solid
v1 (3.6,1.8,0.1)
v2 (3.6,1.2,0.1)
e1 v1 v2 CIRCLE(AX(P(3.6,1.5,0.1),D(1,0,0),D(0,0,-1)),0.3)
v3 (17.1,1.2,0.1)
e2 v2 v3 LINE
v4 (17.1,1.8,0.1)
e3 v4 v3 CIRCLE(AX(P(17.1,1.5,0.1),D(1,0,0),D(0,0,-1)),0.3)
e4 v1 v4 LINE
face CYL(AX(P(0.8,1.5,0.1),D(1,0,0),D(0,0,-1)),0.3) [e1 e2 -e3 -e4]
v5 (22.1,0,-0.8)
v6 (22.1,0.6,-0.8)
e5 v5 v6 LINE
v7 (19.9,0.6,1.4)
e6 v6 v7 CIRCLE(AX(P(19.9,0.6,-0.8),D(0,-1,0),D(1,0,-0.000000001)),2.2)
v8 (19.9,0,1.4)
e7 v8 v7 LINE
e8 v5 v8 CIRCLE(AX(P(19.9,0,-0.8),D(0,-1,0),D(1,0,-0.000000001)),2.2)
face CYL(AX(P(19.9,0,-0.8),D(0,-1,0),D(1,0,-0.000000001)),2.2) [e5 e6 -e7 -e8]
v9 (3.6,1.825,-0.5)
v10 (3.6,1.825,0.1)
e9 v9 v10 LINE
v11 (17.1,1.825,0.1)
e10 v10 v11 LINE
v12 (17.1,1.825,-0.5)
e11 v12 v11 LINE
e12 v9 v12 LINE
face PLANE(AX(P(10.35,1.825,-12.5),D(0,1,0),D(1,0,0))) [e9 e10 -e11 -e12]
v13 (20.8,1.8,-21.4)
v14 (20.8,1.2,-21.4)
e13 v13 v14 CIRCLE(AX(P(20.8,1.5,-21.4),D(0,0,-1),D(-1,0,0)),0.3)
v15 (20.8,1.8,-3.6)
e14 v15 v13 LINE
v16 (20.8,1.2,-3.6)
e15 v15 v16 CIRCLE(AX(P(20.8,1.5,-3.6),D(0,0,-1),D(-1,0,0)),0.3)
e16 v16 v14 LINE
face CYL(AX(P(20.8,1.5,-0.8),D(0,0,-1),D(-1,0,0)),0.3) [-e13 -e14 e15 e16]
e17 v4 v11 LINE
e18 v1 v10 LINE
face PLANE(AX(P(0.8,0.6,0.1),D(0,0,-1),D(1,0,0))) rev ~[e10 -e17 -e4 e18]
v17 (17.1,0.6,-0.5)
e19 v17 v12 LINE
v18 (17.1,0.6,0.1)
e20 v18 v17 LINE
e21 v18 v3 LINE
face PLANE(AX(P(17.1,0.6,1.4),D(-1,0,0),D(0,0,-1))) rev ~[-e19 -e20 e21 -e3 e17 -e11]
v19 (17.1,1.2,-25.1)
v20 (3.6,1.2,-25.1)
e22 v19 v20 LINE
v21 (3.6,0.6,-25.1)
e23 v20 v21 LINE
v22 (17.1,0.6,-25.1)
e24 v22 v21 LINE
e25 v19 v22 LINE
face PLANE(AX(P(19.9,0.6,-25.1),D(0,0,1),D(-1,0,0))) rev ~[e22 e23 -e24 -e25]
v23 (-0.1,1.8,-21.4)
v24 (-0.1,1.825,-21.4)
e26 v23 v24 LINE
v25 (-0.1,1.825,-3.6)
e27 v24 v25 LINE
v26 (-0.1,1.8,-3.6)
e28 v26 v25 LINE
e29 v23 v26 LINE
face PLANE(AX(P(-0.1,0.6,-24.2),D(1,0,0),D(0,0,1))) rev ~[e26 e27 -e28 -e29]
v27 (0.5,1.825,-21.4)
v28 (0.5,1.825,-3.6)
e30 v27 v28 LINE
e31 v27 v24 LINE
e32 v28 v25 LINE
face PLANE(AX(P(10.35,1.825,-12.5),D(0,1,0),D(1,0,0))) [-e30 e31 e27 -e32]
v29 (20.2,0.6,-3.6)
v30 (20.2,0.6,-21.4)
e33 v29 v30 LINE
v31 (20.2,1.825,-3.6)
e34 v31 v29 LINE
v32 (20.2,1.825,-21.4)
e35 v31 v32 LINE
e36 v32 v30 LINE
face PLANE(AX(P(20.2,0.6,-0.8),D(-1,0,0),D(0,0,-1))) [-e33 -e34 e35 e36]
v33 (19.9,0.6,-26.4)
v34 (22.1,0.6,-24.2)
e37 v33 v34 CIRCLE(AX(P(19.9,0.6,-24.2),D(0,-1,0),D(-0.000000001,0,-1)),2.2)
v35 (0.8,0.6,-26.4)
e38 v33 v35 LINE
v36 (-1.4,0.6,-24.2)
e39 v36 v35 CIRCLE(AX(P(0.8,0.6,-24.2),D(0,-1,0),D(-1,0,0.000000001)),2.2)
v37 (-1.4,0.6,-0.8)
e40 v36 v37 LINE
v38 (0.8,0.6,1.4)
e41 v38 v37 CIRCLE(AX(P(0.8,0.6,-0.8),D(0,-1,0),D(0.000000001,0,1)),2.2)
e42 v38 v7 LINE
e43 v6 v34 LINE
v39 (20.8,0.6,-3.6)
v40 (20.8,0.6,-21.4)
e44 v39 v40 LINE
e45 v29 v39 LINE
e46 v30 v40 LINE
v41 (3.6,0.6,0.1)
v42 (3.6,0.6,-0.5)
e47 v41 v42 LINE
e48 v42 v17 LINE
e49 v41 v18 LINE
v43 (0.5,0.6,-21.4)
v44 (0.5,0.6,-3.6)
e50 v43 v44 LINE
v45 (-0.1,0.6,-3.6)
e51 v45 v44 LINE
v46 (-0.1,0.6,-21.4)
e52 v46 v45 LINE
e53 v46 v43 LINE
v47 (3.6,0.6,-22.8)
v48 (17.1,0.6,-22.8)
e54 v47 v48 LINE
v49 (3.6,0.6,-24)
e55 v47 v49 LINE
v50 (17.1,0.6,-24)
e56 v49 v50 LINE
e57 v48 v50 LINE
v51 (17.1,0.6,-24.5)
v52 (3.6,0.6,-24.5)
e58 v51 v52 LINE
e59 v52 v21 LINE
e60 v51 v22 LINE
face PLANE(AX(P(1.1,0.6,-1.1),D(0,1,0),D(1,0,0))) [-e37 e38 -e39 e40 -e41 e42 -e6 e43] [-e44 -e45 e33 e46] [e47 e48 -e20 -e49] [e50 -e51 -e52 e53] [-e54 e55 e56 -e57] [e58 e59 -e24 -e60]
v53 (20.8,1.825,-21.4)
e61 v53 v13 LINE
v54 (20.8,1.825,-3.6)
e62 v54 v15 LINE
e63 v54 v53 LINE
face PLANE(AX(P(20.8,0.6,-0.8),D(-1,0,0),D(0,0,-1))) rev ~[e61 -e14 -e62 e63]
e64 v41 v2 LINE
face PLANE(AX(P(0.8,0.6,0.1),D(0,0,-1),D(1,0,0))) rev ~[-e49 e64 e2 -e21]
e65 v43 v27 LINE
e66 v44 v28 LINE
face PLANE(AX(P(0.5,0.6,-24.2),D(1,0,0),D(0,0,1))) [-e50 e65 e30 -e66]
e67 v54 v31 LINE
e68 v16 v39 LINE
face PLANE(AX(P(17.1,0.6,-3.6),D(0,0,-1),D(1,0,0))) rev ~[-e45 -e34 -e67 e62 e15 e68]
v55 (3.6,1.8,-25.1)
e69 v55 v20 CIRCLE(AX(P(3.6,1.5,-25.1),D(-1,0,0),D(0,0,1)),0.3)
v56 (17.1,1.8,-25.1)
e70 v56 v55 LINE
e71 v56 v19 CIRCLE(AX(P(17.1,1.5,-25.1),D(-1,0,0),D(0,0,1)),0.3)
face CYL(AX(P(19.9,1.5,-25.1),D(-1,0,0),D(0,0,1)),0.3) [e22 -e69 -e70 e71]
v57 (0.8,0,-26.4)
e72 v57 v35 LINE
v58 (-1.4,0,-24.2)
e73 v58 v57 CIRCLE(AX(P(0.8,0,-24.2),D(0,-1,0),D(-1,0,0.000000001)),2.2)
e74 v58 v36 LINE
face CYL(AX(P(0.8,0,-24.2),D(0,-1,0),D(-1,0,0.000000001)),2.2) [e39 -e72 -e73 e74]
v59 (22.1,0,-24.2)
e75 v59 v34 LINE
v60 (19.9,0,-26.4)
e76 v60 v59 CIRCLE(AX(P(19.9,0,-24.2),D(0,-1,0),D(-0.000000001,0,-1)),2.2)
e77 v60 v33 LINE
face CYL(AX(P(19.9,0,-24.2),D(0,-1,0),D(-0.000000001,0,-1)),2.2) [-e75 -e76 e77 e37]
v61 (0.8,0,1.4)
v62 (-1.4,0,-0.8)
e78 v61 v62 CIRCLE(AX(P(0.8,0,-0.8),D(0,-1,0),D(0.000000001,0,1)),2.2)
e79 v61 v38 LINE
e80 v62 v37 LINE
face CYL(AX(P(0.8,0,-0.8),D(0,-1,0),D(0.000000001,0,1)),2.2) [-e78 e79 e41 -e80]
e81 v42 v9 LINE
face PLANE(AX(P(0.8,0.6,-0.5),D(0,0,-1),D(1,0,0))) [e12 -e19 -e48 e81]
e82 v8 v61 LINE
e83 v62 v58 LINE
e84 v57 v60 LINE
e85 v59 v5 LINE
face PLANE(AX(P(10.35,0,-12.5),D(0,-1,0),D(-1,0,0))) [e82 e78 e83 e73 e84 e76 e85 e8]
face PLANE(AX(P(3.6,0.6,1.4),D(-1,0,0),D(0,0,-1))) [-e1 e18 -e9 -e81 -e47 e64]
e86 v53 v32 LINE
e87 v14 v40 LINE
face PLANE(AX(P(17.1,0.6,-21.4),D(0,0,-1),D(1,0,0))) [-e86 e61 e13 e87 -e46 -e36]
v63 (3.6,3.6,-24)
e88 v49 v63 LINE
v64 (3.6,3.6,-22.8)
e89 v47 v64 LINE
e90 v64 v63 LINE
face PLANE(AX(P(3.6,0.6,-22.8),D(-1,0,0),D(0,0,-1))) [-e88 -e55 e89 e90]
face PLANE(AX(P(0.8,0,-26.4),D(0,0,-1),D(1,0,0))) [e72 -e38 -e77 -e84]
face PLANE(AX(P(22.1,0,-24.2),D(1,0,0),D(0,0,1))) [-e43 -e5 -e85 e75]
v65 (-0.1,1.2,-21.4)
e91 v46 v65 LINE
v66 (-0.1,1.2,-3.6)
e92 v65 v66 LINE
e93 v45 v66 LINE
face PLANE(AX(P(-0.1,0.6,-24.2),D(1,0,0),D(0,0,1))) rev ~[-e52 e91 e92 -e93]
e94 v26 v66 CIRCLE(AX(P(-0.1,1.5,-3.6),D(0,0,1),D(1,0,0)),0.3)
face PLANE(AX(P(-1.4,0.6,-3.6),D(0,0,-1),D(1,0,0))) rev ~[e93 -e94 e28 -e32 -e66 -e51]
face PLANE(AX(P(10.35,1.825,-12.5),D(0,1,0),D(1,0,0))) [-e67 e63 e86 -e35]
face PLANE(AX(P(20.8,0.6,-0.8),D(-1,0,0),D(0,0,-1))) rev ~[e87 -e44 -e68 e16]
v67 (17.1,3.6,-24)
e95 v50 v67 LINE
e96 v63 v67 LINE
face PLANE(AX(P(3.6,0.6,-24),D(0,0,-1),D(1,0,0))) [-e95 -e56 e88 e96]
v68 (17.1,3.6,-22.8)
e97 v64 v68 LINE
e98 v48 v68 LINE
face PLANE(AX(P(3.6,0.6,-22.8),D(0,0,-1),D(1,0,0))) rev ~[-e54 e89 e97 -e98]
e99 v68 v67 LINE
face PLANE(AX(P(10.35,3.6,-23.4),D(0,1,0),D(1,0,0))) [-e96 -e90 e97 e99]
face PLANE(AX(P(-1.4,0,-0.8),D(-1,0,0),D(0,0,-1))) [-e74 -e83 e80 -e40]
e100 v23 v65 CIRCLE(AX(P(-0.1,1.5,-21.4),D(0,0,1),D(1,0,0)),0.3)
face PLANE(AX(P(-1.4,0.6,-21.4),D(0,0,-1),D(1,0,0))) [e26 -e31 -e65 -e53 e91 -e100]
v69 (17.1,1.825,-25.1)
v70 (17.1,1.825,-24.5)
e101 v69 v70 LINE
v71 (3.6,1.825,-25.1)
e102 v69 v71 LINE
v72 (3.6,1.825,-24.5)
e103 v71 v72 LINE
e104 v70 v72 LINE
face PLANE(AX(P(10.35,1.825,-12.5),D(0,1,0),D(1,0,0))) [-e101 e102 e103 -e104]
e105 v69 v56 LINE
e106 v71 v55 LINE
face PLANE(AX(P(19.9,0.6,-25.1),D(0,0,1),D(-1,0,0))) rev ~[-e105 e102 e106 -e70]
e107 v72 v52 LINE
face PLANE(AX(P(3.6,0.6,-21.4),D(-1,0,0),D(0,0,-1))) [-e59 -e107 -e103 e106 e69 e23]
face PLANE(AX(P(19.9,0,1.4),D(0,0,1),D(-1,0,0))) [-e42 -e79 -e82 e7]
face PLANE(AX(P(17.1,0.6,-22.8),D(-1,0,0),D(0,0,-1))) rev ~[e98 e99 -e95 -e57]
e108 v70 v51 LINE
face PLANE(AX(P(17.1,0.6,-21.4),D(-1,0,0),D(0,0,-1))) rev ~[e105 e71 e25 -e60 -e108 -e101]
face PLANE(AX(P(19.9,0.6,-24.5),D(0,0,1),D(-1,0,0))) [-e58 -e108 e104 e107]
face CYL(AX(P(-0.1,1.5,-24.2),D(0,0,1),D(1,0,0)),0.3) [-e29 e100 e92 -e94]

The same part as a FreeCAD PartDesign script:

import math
import FreeCAD as App
import Part
import Sketcher
from FreeCAD import Vector
Q = App.Units.Quantity

doc = App.newDocument("Part")
body = doc.addObject("PartDesign::Body", "Body")

sketch1 = body.newObject("Sketcher::SketchObject", "Sketch")
sketch1.AttachmentSupport = (doc.getObject("XZ_Plane"), [""])
sketch1.MapMode = "FlatFace"
sketch1.addGeometry([
    Part.LineSegment(Vector(19.9, -26.4, 0), Vector(0.8, -26.4, 0)),
    Part.ArcOfCircle(Part.Circle(Vector(0.8, -24.2, 0), Vector(0, 0, 1), 2.2), math.radians(180), math.radians(270)),
    Part.LineSegment(Vector(-1.4, -24.2, 0), Vector(-1.4, -0.8, 0)),
    Part.ArcOfCircle(Part.Circle(Vector(0.8, -0.8, 0), Vector(0, 0, 1), 2.2), math.radians(90), math.radians(180)),
    Part.LineSegment(Vector(0.8, 1.4, 0), Vector(19.9, 1.4, 0)),
    Part.ArcOfCircle(Part.Circle(Vector(19.9, -0.8, 0), Vector(0, 0, 1), 2.2), math.radians(0), math.radians(90)),
    Part.LineSegment(Vector(22.1, -0.8, 0), Vector(22.1, -24.2, 0)),
    Part.ArcOfCircle(Part.Circle(Vector(19.9, -24.2, 0), Vector(0, 0, 1), 2.2), math.radians(-90), math.radians(0)),
], False)
sketch1.addConstraint([
    Sketcher.Constraint("Tangent", 0, 2, 1, 2),
    Sketcher.Constraint("Tangent", 1, 1, 2, 1),
    Sketcher.Constraint("Tangent", 2, 2, 3, 2),
    Sketcher.Constraint("Tangent", 3, 1, 4, 1),
    Sketcher.Constraint("Tangent", 4, 2, 5, 2),
    Sketcher.Constraint("Tangent", 5, 1, 6, 1),
    Sketcher.Constraint("Tangent", 6, 2, 7, 2),
    Sketcher.Constraint("Tangent", 7, 1, 0, 1),
    Sketcher.Constraint("Horizontal", 0),
    Sketcher.Constraint("Vertical", 2),
    Sketcher.Constraint("Horizontal", 4),
    Sketcher.Constraint("Vertical", 6),
    Sketcher.Constraint("Equal", 1, 3),
    Sketcher.Constraint("Equal", 3, 5),
    Sketcher.Constraint("Equal", 5, 7),
    Sketcher.Constraint("Radius", 1, Q("2.2 mm")),
    Sketcher.Constraint("DistanceX", 0, 2, 0, 1, Q("19.1 mm")),
    Sketcher.Constraint("DistanceY", 2, 1, 2, 2, Q("23.4 mm")),
    Sketcher.Constraint("DistanceX", -1, 1, 1, 3, Q("0.8 mm")),
    Sketcher.Constraint("DistanceY", 1, 3, -1, 1, Q("24.2 mm")),
])
pad1 = body.newObject("PartDesign::Pad", "Pad")
pad1.Profile = sketch1
pad1.Length = 0.6
pad1.Reversed = True

sketch2 = body.newObject("Sketcher::SketchObject", "Sketch001")
sketch2.AttachmentSupport = (doc.getObject("XZ_Plane"), [""])
sketch2.MapMode = "FlatFace"
sketch2.AttachmentOffset = App.Placement(Vector(0, 0, -0.6), App.Rotation())
sketch2.addGeometry([
    Part.LineSegment(Vector(-0.1, -24.2, 0), Vector(-0.1, -0.8, 0)),
    Part.ArcOfCircle(Part.Circle(Vector(0.8, -0.8, 0), Vector(0, 0, 1), 0.9), math.radians(90), math.radians(180)),
    Part.LineSegment(Vector(0.8, 0.1, 0), Vector(19.9, 0.1, 0)),
    Part.ArcOfCircle(Part.Circle(Vector(19.9, -0.8, 0), Vector(0, 0, 1), 0.9), math.radians(0), math.radians(90)),
    Part.LineSegment(Vector(20.8, -0.8, 0), Vector(20.8, -24.2, 0)),
    Part.ArcOfCircle(Part.Circle(Vector(19.9, -24.2, 0), Vector(0, 0, 1), 0.9), math.radians(-90), math.radians(0)),
    Part.LineSegment(Vector(19.9, -25.1, 0), Vector(0.8, -25.1, 0)),
    Part.ArcOfCircle(Part.Circle(Vector(0.8, -24.2, 0), Vector(0, 0, 1), 0.9), math.radians(180), math.radians(270)),
    Part.LineSegment(Vector(0.8, -24.5, 0), Vector(19.9, -24.5, 0)),
    Part.ArcOfCircle(Part.Circle(Vector(19.9, -24.2, 0), Vector(0, 0, 1), 0.3), math.radians(-90), math.radians(0)),
    Part.LineSegment(Vector(20.2, -24.2, 0), Vector(20.2, -0.8, 0)),
    Part.ArcOfCircle(Part.Circle(Vector(19.9, -0.8, 0), Vector(0, 0, 1), 0.3), math.radians(0), math.radians(90)),
    Part.LineSegment(Vector(19.9, -0.5, 0), Vector(0.8, -0.5, 0)),
    Part.ArcOfCircle(Part.Circle(Vector(0.8, -0.8, 0), Vector(0, 0, 1), 0.3), math.radians(90), math.radians(180)),
    Part.LineSegment(Vector(0.5, -0.8, 0), Vector(0.5, -24.2, 0)),
    Part.ArcOfCircle(Part.Circle(Vector(0.8, -24.2, 0), Vector(0, 0, 1), 0.3), math.radians(-180), math.radians(-90)),
], False)
sketch2.addConstraint([
    Sketcher.Constraint("Tangent", 0, 2, 1, 2),
    Sketcher.Constraint("Tangent", 1, 1, 2, 1),
    Sketcher.Constraint("Tangent", 2, 2, 3, 2),
    Sketcher.Constraint("Tangent", 3, 1, 4, 1),
    Sketcher.Constraint("Tangent", 4, 2, 5, 2),
    Sketcher.Constraint("Tangent", 5, 1, 6, 1),
    Sketcher.Constraint("Tangent", 6, 2, 7, 2),
    Sketcher.Constraint("Tangent", 7, 1, 0, 1),
    Sketcher.Constraint("Tangent", 8, 2, 9, 1),
    Sketcher.Constraint("Tangent", 9, 2, 10, 1),
    Sketcher.Constraint("Tangent", 10, 2, 11, 1),
    Sketcher.Constraint("Tangent", 11, 2, 12, 1),
    Sketcher.Constraint("Tangent", 12, 2, 13, 1),
    Sketcher.Constraint("Tangent", 13, 2, 14, 1),
    Sketcher.Constraint("Tangent", 14, 2, 15, 1),
    Sketcher.Constraint("Tangent", 15, 2, 8, 1),
    Sketcher.Constraint("Vertical", 0),
    Sketcher.Constraint("Horizontal", 2),
    Sketcher.Constraint("Vertical", 4),
    Sketcher.Constraint("Horizontal", 6),
    Sketcher.Constraint("Horizontal", 8),
    Sketcher.Constraint("Vertical", 10),
    Sketcher.Constraint("Horizontal", 12),
    Sketcher.Constraint("Vertical", 14),
    Sketcher.Constraint("Coincident", 9, 3, 5, 3),
    Sketcher.Constraint("Coincident", 11, 3, 3, 3),
    Sketcher.Constraint("Coincident", 13, 3, 1, 3),
    Sketcher.Constraint("Equal", 1, 3),
    Sketcher.Constraint("Equal", 3, 5),
    Sketcher.Constraint("Equal", 5, 7),
    Sketcher.Constraint("Equal", 13, 15),
    Sketcher.Constraint("Radius", 1, Q("0.9 mm")),
    Sketcher.Constraint("Radius", 9, Q("0.3 mm")),
    Sketcher.Constraint("DistanceX", 2, 1, 2, 2, Q("19.1 mm")),
    Sketcher.Constraint("DistanceY", 0, 1, 0, 2, Q("23.4 mm")),
    Sketcher.Constraint("DistanceX", -1, 1, 1, 3, Q("0.8 mm")),
    Sketcher.Constraint("DistanceY", 1, 3, -1, 1, Q("0.8 mm")),
])
pad2 = body.newObject("PartDesign::Pad", "Pad001")
pad2.Profile = sketch2
pad2.Length = 1.225
pad2.Reversed = True

sketch3 = body.newObject("Sketcher::SketchObject", "Sketch002")
sketch3.AttachmentSupport = (doc.getObject("XY_Plane"), [""])
sketch3.MapMode = "FlatFace"
sketch3.AttachmentOffset = App.Placement(Vector(0, 0, -10.5), App.Rotation())
sketch3.addGeometry(Part.Circle(Vector(20.8, 1.5, 0), Vector(0, 0, 1), 0.3), False)
sketch3.addConstraint([
    Sketcher.Constraint("Diameter", 0, Q("0.6 mm")),
    Sketcher.Constraint("DistanceX", -1, 1, 0, 3, Q("20.8 mm")),
    Sketcher.Constraint("DistanceY", -1, 1, 0, 3, Q("1.5 mm")),
])

sketch4 = body.newObject("Sketcher::SketchObject", "Sketch003")
sketch4.AttachmentSupport = (doc.getObject("XZ_Plane"), [""])
sketch4.MapMode = "FlatFace"
sketch4.AttachmentOffset = App.Placement(Vector(0, 0, -1.825), App.Rotation())
sketch4.addGeometry([
    Part.LineSegment(Vector(-0.1, -24.2, 0), Vector(-0.1, -0.8, 0)),
    Part.ArcOfCircle(Part.Circle(Vector(0.8, -0.8, 0), Vector(0, 0, 1), 0.9), math.radians(90), math.radians(180)),
    Part.LineSegment(Vector(0.8, 0.1, 0), Vector(19.9, 0.1, 0)),
    Part.ArcOfCircle(Part.Circle(Vector(19.9, -0.8, 0), Vector(0, 0, 1), 0.9), math.radians(0), math.radians(90)),
    Part.LineSegment(Vector(20.8, -0.8, 0), Vector(20.8, -24.2, 0)),
    Part.ArcOfCircle(Part.Circle(Vector(19.9, -24.2, 0), Vector(0, 0, 1), 0.9), math.radians(-90), math.radians(0)),
    Part.LineSegment(Vector(19.9, -25.1, 0), Vector(0.8, -25.1, 0)),
    Part.ArcOfCircle(Part.Circle(Vector(0.8, -24.2, 0), Vector(0, 0, 1), 0.9), math.radians(180), math.radians(270)),
], False)
sketch4.addConstraint([
    Sketcher.Constraint("Tangent", 0, 2, 1, 2),
    Sketcher.Constraint("Tangent", 1, 1, 2, 1),
    Sketcher.Constraint("Tangent", 2, 2, 3, 2),
    Sketcher.Constraint("Tangent", 3, 1, 4, 1),
    Sketcher.Constraint("Tangent", 4, 2, 5, 2),
    Sketcher.Constraint("Tangent", 5, 1, 6, 1),
    Sketcher.Constraint("Tangent", 6, 2, 7, 2),
    Sketcher.Constraint("Tangent", 7, 1, 0, 1),
    Sketcher.Constraint("Vertical", 0),
    Sketcher.Constraint("Horizontal", 2),
    Sketcher.Constraint("Vertical", 4),
    Sketcher.Constraint("Horizontal", 6),
    Sketcher.Constraint("Equal", 1, 3),
    Sketcher.Constraint("Equal", 3, 5),
    Sketcher.Constraint("Equal", 5, 7),
    Sketcher.Constraint("Radius", 1, Q("0.9 mm")),
    Sketcher.Constraint("DistanceX", 2, 1, 2, 2, Q("19.1 mm")),
    Sketcher.Constraint("DistanceY", 0, 1, 0, 2, Q("23.4 mm")),
    Sketcher.Constraint("DistanceX", -1, 1, 1, 3, Q("0.8 mm")),
    Sketcher.Constraint("DistanceY", 1, 3, -1, 1, Q("0.8 mm")),
])
doc.recompute()

additivepipe = body.newObject("PartDesign::AdditivePipe", "AdditivePipe")
additivepipe.Profile = sketch3
additivepipe.Spine = (sketch4, ["Edge1", "Edge2", "Edge3", "Edge4", "Edge5", "Edge6", "Edge7", "Edge8"])

sketch5 = body.newObject("Sketcher::SketchObject", "Sketch004")
sketch5.AttachmentSupport = (doc.getObject("XZ_Plane"), [""])
sketch5.MapMode = "FlatFace"
sketch5.AttachmentOffset = App.Placement(Vector(0, 0, -0.6), App.Rotation())
sketch5.addGeometry([
    Part.LineSegment(Vector(-1, -26, 0), Vector(-1, -21, 0)),
    Part.LineSegment(Vector(-1, -21, 0), Vector(4, -21, 0)),
    Part.LineSegment(Vector(4, -21, 0), Vector(4, -26, 0)),
    Part.LineSegment(Vector(4, -26, 0), Vector(-1, -26, 0)),
    Part.LineSegment(Vector(17, -26, 0), Vector(17, -21, 0)),
    Part.LineSegment(Vector(17, -21, 0), Vector(22, -21, 0)),
    Part.LineSegment(Vector(22, -21, 0), Vector(22, -26, 0)),
    Part.LineSegment(Vector(22, -26, 0), Vector(17, -26, 0)),
    Part.LineSegment(Vector(17, -4, 0), Vector(17, 1, 0)),
    Part.LineSegment(Vector(17, 1, 0), Vector(22, 1, 0)),
    Part.LineSegment(Vector(22, 1, 0), Vector(22, -4, 0)),
    Part.LineSegment(Vector(22, -4, 0), Vector(17, -4, 0)),
    Part.LineSegment(Vector(-1, -4, 0), Vector(-1, 1, 0)),
    Part.LineSegment(Vector(-1, 1, 0), Vector(4, 1, 0)),
    Part.LineSegment(Vector(4, 1, 0), Vector(4, -4, 0)),
    Part.LineSegment(Vector(4, -4, 0), Vector(-1, -4, 0)),
], False)
sketch5.addConstraint([
    Sketcher.Constraint("Coincident", 0, 2, 1, 1),
    Sketcher.Constraint("Coincident", 1, 2, 2, 1),
    Sketcher.Constraint("Coincident", 2, 2, 3, 1),
    Sketcher.Constraint("Coincident", 3, 2, 0, 1),
    Sketcher.Constraint("Coincident", 4, 2, 5, 1),
    Sketcher.Constraint("Coincident", 5, 2, 6, 1),
    Sketcher.Constraint("Coincident", 6, 2, 7, 1),
    Sketcher.Constraint("Coincident", 7, 2, 4, 1),
    Sketcher.Constraint("Coincident", 8, 2, 9, 1),
    Sketcher.Constraint("Coincident", 9, 2, 10, 1),
    Sketcher.Constraint("Coincident", 10, 2, 11, 1),
    Sketcher.Constraint("Coincident", 11, 2, 8, 1),
    Sketcher.Constraint("Coincident", 12, 2, 13, 1),
    Sketcher.Constraint("Coincident", 13, 2, 14, 1),
    Sketcher.Constraint("Coincident", 14, 2, 15, 1),
    Sketcher.Constraint("Coincident", 15, 2, 12, 1),
    Sketcher.Constraint("Vertical", 0),
    Sketcher.Constraint("Horizontal", 1),
    Sketcher.Constraint("Vertical", 2),
    Sketcher.Constraint("Horizontal", 3),
    Sketcher.Constraint("Vertical", 4),
    Sketcher.Constraint("Horizontal", 5),
    Sketcher.Constraint("Vertical", 6),
    Sketcher.Constraint("Horizontal", 7),
    Sketcher.Constraint("Vertical", 8),
    Sketcher.Constraint("Horizontal", 9),
    Sketcher.Constraint("Vertical", 10),
    Sketcher.Constraint("Horizontal", 11),
    Sketcher.Constraint("Vertical", 12),
    Sketcher.Constraint("Horizontal", 13),
    Sketcher.Constraint("Vertical", 14),
    Sketcher.Constraint("Horizontal", 15),
    Sketcher.Constraint("Horizontal", 1, 2, 4, 2),
    Sketcher.Constraint("Horizontal", 3, 2, 6, 2),
    Sketcher.Constraint("Horizontal", 9, 2, 12, 2),
    Sketcher.Constraint("Horizontal", 11, 2, 14, 2),
    Sketcher.Constraint("Vertical", 7, 2, 8, 2),
    Sketcher.Constraint("Vertical", 6, 2, 9, 2),
    Sketcher.Constraint("Vertical", 3, 2, 12, 2),
    Sketcher.Constraint("Vertical", 2, 2, 13, 2),
    Sketcher.Constraint("Equal", 3, 5),
    Sketcher.Constraint("Equal", 15, 0),
    Sketcher.Constraint("Equal", 6, 8),
    Sketcher.Constraint("DistanceX", 1, 1, 1, 2, Q("5 mm")),
    Sketcher.Constraint("DistanceX", 0, 2, -1, 1, Q("1.4 mm")),
    Sketcher.Constraint("DistanceY", 0, 2, -1, 1, Q("21.4 mm")),
    Sketcher.Constraint("DistanceX", -1, 1, 4, 2, Q("17.1 mm")),
    Sketcher.Constraint("DistanceY", -1, 1, 8, 2, Q("1.4 mm")),
])
pocket1 = body.newObject("PartDesign::Pocket", "Pocket")
pocket1.Profile = sketch5
pocket1.Length = 10

sketch6 = body.newObject("Sketcher::SketchObject", "Sketch005")
sketch6.AttachmentSupport = (doc.getObject("XZ_Plane"), [""])
sketch6.MapMode = "FlatFace"
sketch6.AttachmentOffset = App.Placement(Vector(0, 0, -0.6), App.Rotation())
sketch6.addGeometry([
    Part.LineSegment(Vector(3.6, -24, 0), Vector(3.6, -22.8, 0)),
    Part.LineSegment(Vector(3.6, -22.8, 0), Vector(17.1, -22.8, 0)),
    Part.LineSegment(Vector(17.1, -22.8, 0), Vector(17.1, -24, 0)),
    Part.LineSegment(Vector(17.1, -24, 0), Vector(3.6, -24, 0)),
], False)
sketch6.addConstraint([
    Sketcher.Constraint("Coincident", 0, 2, 1, 1),
    Sketcher.Constraint("Coincident", 1, 2, 2, 1),
    Sketcher.Constraint("Coincident", 2, 2, 3, 1),
    Sketcher.Constraint("Coincident", 3, 2, 0, 1),
    Sketcher.Constraint("Vertical", 0),
    Sketcher.Constraint("Horizontal", 1),
    Sketcher.Constraint("Vertical", 2),
    Sketcher.Constraint("Horizontal", 3),
    Sketcher.Constraint("DistanceX", 1, 1, 1, 2, Q("13.5 mm")),
    Sketcher.Constraint("DistanceY", 0, 1, 0, 2, Q("1.2 mm")),
    Sketcher.Constraint("DistanceY", 2, 2, -1, 1, Q("24 mm")),
    Sketcher.Constraint("DistanceX", -1, 1, 0, 2, Q("3.6 mm")),
])
pad3 = body.newObject("PartDesign::Pad", "Pad002")
pad3.Profile = sketch6
pad3.Length = 3
pad3.Reversed = True

doc.recompute()
